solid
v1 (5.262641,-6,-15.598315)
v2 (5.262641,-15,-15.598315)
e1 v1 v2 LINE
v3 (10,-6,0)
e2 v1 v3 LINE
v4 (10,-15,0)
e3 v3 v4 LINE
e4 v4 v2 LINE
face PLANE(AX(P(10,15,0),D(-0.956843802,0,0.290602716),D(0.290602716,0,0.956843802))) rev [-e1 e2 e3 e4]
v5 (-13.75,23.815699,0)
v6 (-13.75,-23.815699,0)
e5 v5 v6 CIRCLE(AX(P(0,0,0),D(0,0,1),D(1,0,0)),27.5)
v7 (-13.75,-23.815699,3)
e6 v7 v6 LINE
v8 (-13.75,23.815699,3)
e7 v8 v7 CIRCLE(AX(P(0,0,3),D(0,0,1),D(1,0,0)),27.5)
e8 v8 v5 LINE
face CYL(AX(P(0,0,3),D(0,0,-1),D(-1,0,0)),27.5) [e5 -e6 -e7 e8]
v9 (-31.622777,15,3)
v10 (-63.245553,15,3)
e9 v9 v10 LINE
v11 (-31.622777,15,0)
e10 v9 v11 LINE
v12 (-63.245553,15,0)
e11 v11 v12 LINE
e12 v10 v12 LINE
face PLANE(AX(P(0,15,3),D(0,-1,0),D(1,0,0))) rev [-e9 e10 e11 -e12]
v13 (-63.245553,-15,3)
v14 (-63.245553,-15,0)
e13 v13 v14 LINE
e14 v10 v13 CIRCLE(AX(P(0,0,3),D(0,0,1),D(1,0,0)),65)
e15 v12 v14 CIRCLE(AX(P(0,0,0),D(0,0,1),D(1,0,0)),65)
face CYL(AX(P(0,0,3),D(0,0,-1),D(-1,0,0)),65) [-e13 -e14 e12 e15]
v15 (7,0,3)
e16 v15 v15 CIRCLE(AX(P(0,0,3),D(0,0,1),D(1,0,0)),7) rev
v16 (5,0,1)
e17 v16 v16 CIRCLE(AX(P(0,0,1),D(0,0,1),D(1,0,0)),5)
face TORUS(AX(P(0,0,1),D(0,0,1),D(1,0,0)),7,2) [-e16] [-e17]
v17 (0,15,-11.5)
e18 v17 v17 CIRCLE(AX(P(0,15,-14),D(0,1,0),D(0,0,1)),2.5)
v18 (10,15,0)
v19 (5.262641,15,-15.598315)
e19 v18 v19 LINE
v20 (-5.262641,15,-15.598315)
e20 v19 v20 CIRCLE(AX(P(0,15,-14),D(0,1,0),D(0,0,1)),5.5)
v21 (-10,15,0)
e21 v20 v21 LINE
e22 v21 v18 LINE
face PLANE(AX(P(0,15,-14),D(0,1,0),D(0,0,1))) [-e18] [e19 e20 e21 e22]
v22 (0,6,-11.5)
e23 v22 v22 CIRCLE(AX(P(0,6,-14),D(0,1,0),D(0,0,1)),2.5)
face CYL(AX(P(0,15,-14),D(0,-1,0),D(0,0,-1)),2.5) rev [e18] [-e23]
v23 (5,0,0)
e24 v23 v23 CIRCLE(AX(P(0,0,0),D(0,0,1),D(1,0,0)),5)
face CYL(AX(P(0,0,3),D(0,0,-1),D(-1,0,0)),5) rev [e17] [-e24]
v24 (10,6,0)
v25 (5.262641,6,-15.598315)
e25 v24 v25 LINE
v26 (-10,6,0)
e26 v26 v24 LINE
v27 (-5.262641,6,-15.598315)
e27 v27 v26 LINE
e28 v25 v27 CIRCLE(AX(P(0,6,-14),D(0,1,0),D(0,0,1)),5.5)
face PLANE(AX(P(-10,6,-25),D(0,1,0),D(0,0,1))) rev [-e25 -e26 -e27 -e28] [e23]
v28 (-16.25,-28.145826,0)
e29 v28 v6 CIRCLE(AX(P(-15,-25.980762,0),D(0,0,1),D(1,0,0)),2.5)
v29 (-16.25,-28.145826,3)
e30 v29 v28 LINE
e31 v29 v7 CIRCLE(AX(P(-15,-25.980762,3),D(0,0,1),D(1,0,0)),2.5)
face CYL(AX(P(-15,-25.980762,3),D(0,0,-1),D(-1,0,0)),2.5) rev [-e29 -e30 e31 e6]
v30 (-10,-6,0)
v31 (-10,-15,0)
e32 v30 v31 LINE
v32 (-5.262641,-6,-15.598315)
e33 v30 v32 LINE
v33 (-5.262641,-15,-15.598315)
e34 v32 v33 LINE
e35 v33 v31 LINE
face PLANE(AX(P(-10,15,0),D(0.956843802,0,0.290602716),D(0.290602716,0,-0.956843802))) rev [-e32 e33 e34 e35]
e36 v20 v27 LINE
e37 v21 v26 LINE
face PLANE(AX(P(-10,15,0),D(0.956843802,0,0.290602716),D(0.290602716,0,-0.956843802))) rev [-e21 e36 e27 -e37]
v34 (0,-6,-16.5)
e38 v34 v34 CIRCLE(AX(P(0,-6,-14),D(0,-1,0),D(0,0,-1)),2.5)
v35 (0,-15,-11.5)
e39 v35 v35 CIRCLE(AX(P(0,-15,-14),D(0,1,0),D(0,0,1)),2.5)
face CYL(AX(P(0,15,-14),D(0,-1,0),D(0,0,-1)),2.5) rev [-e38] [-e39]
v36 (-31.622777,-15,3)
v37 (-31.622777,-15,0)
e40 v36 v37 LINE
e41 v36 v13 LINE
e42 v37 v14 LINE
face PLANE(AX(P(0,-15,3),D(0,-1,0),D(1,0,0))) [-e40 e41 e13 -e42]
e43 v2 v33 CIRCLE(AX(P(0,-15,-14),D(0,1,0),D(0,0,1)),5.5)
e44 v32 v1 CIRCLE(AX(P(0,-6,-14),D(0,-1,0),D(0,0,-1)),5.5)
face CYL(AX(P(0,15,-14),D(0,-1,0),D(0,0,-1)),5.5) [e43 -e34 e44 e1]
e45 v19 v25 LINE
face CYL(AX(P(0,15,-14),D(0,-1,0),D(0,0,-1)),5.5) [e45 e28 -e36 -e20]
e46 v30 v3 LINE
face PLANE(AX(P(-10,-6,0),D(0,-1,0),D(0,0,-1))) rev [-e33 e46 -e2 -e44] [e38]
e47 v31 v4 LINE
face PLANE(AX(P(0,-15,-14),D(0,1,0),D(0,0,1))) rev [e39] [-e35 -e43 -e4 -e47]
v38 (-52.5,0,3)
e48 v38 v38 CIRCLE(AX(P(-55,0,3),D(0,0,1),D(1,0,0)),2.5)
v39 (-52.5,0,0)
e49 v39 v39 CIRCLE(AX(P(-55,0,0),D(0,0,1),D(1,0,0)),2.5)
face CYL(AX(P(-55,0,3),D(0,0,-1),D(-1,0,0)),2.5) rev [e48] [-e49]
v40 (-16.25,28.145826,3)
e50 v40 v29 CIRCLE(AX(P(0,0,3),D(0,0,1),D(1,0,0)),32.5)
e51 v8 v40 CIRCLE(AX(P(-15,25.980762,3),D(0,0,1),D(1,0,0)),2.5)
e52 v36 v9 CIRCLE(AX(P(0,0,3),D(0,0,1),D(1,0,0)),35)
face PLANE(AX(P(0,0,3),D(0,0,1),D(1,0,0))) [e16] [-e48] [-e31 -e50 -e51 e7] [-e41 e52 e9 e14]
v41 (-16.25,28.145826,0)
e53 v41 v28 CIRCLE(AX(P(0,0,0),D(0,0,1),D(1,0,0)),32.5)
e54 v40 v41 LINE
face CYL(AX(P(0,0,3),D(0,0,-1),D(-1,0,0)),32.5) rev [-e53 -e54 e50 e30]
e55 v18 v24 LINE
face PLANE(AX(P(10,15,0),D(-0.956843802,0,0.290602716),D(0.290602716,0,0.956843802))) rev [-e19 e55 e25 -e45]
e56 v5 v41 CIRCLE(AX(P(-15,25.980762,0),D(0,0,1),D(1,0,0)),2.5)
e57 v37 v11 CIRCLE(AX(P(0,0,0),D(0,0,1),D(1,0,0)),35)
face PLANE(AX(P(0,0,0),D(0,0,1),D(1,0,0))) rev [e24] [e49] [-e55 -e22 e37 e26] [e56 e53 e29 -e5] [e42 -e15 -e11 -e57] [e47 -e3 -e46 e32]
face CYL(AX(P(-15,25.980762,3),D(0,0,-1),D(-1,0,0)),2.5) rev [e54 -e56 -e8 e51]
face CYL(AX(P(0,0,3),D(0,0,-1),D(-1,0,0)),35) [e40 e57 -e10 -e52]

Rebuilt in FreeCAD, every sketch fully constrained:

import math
import FreeCAD as App
import Part
import Sketcher


def edges_at(feature, points):
    """Names of the edges that pass closest to the given points."""
    edges = feature.Shape.Edges
    near = lambda p: min(range(len(edges)), key=lambda i: edges[i].distToShape(Part.Vertex(*p))[0])
    return sorted({f"Edge{near(p) + 1}" for p in points})


def add_polygon(sketch, points):
    """Adds a closed chain of lines whose ends are joined by coincident constraints."""
    first, n = sketch.GeometryCount, len(points)
    for a, b in zip(points, points[1:] + points[:1]):
        sketch.addGeometry(Part.LineSegment(App.Vector(*a, 0), App.Vector(*b, 0)), False)
    for i in range(n):
        sketch.addConstraint(Sketcher.Constraint("Coincident", first + i, 2, first + (i + 1) % n, 1))

doc = App.newDocument("Part")
body = doc.addObject("PartDesign::Body", "Body")

# Sketch on XY plane
sketch1 = body.newObject("Sketcher::SketchObject", "Sketch")
sketch1.AttachmentSupport = (doc.getObject("XY_Plane"), [""])
sketch1.MapMode = "FlatFace"
sketch1.addGeometry(Part.ArcOfCircle(Part.Circle(App.Vector(0, 0, 0), App.Vector(0, 0, 1), 35), math.radians(-155), math.radians(155)), False)
sketch1.addGeometry(Part.LineSegment(App.Vector(-31.6, 15, 0), App.Vector(-63.2, 15, 0)), False)
sketch1.addGeometry(Part.ArcOfCircle(Part.Circle(App.Vector(0, 0, 0), App.Vector(0, 0, 1), 65), math.radians(167), math.radians(193)), False)
sketch1.addGeometry(Part.LineSegment(App.Vector(-63.2, -15, 0), App.Vector(-31.6, -15, 0)), False)
sketch1.addGeometry(Part.Circle(App.Vector(-55, 0, 0), App.Vector(0, 0, 1), 2.5), False)
sketch1.addGeometry(Part.Circle(App.Vector(0, 0, 0), App.Vector(0, 0, 1), 5), False)
sketch1.addGeometry(Part.ArcOfCircle(Part.Circle(App.Vector(0, 0, 0), App.Vector(0, 0, 1), 27.5), math.radians(120), math.radians(240)), False)
sketch1.addGeometry(Part.ArcOfCircle(Part.Circle(App.Vector(-15, -26, 0), App.Vector(0, 0, 1), 2.5), math.radians(-120), math.radians(60)), False)
sketch1.addGeometry(Part.ArcOfCircle(Part.Circle(App.Vector(0, 0, 0), App.Vector(0, 0, 1), 32.5), math.radians(120), math.radians(240)), False)
sketch1.addGeometry(Part.ArcOfCircle(Part.Circle(App.Vector(-15, 26, 0), App.Vector(0, 0, 1), 2.5), math.radians(-60), math.radians(120)), False)
sketch1.addConstraint(Sketcher.Constraint("Coincident", 0, 2, 1, 1))
sketch1.addConstraint(Sketcher.Constraint("Coincident", 1, 2, 2, 1))
sketch1.addConstraint(Sketcher.Constraint("Coincident", 2, 2, 3, 1))
sketch1.addConstraint(Sketcher.Constraint("Coincident", 3, 2, 0, 1))
sketch1.addConstraint(Sketcher.Constraint("Tangent", 6, 2, 7, 2))
sketch1.addConstraint(Sketcher.Constraint("Tangent", 7, 1, 8, 2))
sketch1.addConstraint(Sketcher.Constraint("Tangent", 8, 1, 9, 2))
sketch1.addConstraint(Sketcher.Constraint("Tangent", 9, 1, 6, 1))
sketch1.addConstraint(Sketcher.Constraint("Horizontal", 1))
sketch1.addConstraint(Sketcher.Constraint("Horizontal", 3))
sketch1.addConstraint(Sketcher.Constraint("Coincident", 0, 3, -1, 1))
sketch1.addConstraint(Sketcher.Constraint("Coincident", 2, 3, -1, 1))
sketch1.addConstraint(Sketcher.Constraint("Coincident", 5, 3, -1, 1))
sketch1.addConstraint(Sketcher.Constraint("Coincident", 6, 3, -1, 1))
sketch1.addConstraint(Sketcher.Constraint("Coincident", 8, 3, -1, 1))
sketch1.addConstraint(Sketcher.Constraint("Equal", 4, 7))
sketch1.addConstraint(Sketcher.Constraint("PointOnObject", 4, 3, -1))
sketch1.addConstraint(Sketcher.Constraint("Vertical", 7, 3, 9, 3))
sketch1.addConstraint(Sketcher.Constraint("Vertical", 1, 2, 2, 2))
sketch1.addConstraint(Sketcher.Constraint("Diameter", 4, 5.0))
sketch1.addConstraint(Sketcher.Constraint("Diameter", 5, 10.0))
sketch1.addConstraint(Sketcher.Constraint("Radius", 0, 35.0))
sketch1.addConstraint(Sketcher.Constraint("Radius", 2, 65.0))
sketch1.addConstraint(Sketcher.Constraint("Radius", 6, 27.5))
sketch1.addConstraint(Sketcher.Constraint("DistanceX", 4, 3, -1, 1, 55.0))
sketch1.addConstraint(Sketcher.Constraint("DistanceX", 7, 3, -1, 1, 15.0))
sketch1.addConstraint(Sketcher.Constraint("DistanceY", -1, 1, 0, 2, 15.0))
pad1 = body.newObject("PartDesign::Pad", "Pad")
pad1.Profile = sketch1
pad1.Length = 3

# Sketch on XZ plane
sketch2 = body.newObject("Sketcher::SketchObject", "Sketch001")
sketch2.AttachmentSupport = (doc.getObject("XZ_Plane"), [""])
sketch2.MapMode = "FlatFace"
sketch2.addGeometry(Part.LineSegment(App.Vector(-10, 0, 0), App.Vector(10, 0, 0)), False)
sketch2.addGeometry(Part.LineSegment(App.Vector(10, 0, 0), App.Vector(5.3, -15.6, 0)), False)
sketch2.addGeometry(Part.ArcOfCircle(Part.Circle(App.Vector(0, -14, 0), App.Vector(0, 0, 1), 5.5), math.radians(-163), math.radians(-17)), False)
sketch2.addGeometry(Part.LineSegment(App.Vector(-5.3, -15.6, 0), App.Vector(-10, 0, 0)), False)
sketch2.addGeometry(Part.Circle(App.Vector(0, -14, 0), App.Vector(0, 0, 1), 2.5), False)
sketch2.addConstraint(Sketcher.Constraint("Coincident", 0, 2, 1, 1))
sketch2.addConstraint(Sketcher.Constraint("Tangent", 1, 2, 2, 2))
sketch2.addConstraint(Sketcher.Constraint("Tangent", 2, 1, 3, 1))
sketch2.addConstraint(Sketcher.Constraint("Coincident", 3, 2, 0, 1))
sketch2.addConstraint(Sketcher.Constraint("Horizontal", 0))
sketch2.addConstraint(Sketcher.Constraint("Coincident", 4, 3, 2, 3))
sketch2.addConstraint(Sketcher.Constraint("Symmetric", 0, 2, 3, 2, -1, 1))
sketch2.addConstraint(Sketcher.Constraint("PointOnObject", 2, 3, -2))
sketch2.addConstraint(Sketcher.Constraint("Diameter", 4, 5.0))
sketch2.addConstraint(Sketcher.Constraint("Radius", 2, 5.5))
sketch2.addConstraint(Sketcher.Constraint("DistanceX", 0, 1, 0, 2, 20.0))
sketch2.addConstraint(Sketcher.Constraint("DistanceY", 2, 3, -1, 1, 14.0))
pad2 = body.newObject("PartDesign::Pad", "Pad001")
pad2.Profile = sketch2
pad2.Length = 30
pad2.Midplane = True

# Sketch on YZ plane
sketch3 = body.newObject("Sketcher::SketchObject", "Sketch002")
sketch3.AttachmentSupport = (doc.getObject("YZ_Plane"), [""])
sketch3.MapMode = "FlatFace"
add_polygon(sketch3, [(6, 0), (-6, 0), (-6, -25), (6, -25)])  # lines 0-3
sketch3.addConstraint(Sketcher.Constraint("Horizontal", 0))
sketch3.addConstraint(Sketcher.Constraint("Vertical", 1))
sketch3.addConstraint(Sketcher.Constraint("Horizontal", 2))
sketch3.addConstraint(Sketcher.Constraint("Vertical", 3))
sketch3.addConstraint(Sketcher.Constraint("Symmetric", 0, 2, 3, 2, -1, 1))
sketch3.addConstraint(Sketcher.Constraint("DistanceX", 0, 2, 0, 1, 12.0))
sketch3.addConstraint(Sketcher.Constraint("DistanceY", 1, 2, 1, 1, 25.0))
pocket1 = body.newObject("PartDesign::Pocket", "Pocket")
pocket1.Profile = sketch3
pocket1.Length = 20
pocket1.Midplane = True
doc.recompute()

fillet = body.newObject("PartDesign::Fillet", "Fillet")
fillet.Base = (pocket1, edges_at(pocket1, [(-5, 0, 3)]))
fillet.Radius = 2

doc.recompute()
